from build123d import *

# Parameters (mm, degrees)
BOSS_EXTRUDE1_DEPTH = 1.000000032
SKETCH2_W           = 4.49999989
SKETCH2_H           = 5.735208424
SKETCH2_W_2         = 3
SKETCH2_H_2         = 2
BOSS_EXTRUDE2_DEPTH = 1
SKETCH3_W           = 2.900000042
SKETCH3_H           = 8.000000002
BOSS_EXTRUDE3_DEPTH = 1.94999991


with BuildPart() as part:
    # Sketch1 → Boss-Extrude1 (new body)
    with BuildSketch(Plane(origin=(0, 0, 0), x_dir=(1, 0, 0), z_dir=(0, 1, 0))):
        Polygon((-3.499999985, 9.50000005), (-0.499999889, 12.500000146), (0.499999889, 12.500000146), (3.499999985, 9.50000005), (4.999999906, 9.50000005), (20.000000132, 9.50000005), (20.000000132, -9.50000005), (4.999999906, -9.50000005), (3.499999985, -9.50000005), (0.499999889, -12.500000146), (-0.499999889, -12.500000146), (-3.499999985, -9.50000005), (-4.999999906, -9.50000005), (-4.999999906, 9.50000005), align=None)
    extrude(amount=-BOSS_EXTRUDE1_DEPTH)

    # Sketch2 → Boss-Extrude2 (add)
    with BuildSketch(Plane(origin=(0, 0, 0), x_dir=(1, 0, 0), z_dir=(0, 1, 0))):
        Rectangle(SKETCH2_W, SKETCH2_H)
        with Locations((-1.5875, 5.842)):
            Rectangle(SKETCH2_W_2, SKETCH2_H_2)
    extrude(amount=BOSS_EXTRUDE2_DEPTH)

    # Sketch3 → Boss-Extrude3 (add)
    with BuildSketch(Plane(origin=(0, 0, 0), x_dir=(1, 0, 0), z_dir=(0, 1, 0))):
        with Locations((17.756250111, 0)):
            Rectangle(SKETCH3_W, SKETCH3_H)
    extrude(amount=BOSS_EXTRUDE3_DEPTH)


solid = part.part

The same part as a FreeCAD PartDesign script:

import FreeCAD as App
import Part
import Sketcher

V = App.Vector

doc = App.newDocument("Part")
body = doc.addObject("PartDesign::Body", "Body")

# Sketch on XZ plane
sketch1 = body.newObject("Sketcher::SketchObject", "Sketch")
sketch1.AttachmentSupport = (doc.getObject("XZ_Plane"), [""])
sketch1.MapMode = "FlatFace"
sketch1.addGeometry([
    Part.LineSegment(V(-0.5, -12.5, 0), V(-3.5, -9.5, 0)),  # 0
    Part.LineSegment(V(-3.5, -9.5, 0), V(-5, -9.5, 0)),  # 1
    Part.LineSegment(V(-5, -9.5, 0), V(-5, 9.5, 0)),  # 2
    Part.LineSegment(V(-5, 9.5, 0), V(-3.5, 9.5, 0)),  # 3
    Part.LineSegment(V(-3.5, 9.5, 0), V(-0.5, 12.5, 0)),  # 4
    Part.LineSegment(V(-0.5, 12.5, 0), V(0.5, 12.5, 0)),  # 5
    Part.LineSegment(V(0.5, 12.5, 0), V(3.5, 9.5, 0)),  # 6
    Part.LineSegment(V(3.5, 9.5, 0), V(20, 9.5, 0)),  # 7
    Part.LineSegment(V(20, 9.5, 0), V(20, -9.5, 0)),  # 8
    Part.LineSegment(V(20, -9.5, 0), V(3.5, -9.5, 0)),  # 9
    Part.LineSegment(V(3.5, -9.5, 0), V(0.5, -12.5, 0)),  # 10
    Part.LineSegment(V(0.5, -12.5, 0), V(-0.5, -12.5, 0)),  # 11
], False)
sketch1.addConstraint([
    Sketcher.Constraint("Coincident", 0, 2, 1, 1),
    Sketcher.Constraint("Coincident", 1, 2, 2, 1),
    Sketcher.Constraint("Coincident", 2, 2, 3, 1),
    Sketcher.Constraint("Coincident", 3, 2, 4, 1),
    Sketcher.Constraint("Coincident", 4, 2, 5, 1),
    Sketcher.Constraint("Coincident", 5, 2, 6, 1),
    Sketcher.Constraint("Coincident", 6, 2, 7, 1),
    Sketcher.Constraint("Coincident", 7, 2, 8, 1),
    Sketcher.Constraint("Coincident", 8, 2, 9, 1),
    Sketcher.Constraint("Coincident", 9, 2, 10, 1),
    Sketcher.Constraint("Coincident", 10, 2, 11, 1),
    Sketcher.Constraint("Coincident", 11, 2, 0, 1),
    Sketcher.Constraint("Horizontal", 1),
    Sketcher.Constraint("Vertical", 2),
    Sketcher.Constraint("Horizontal", 3),
    Sketcher.Constraint("Horizontal", 5),
    Sketcher.Constraint("Horizontal", 7),
    Sketcher.Constraint("Vertical", 8),
    Sketcher.Constraint("Horizontal", 9),
    Sketcher.Constraint("Horizontal", 11),
    Sketcher.Constraint("Symmetric", 0, 2, 6, 2, -1, 1),
    Sketcher.Constraint("Symmetric", 3, 2, 9, 2, -1, 1),
    Sketcher.Constraint("Symmetric", 4, 2, 10, 2, -1, 1),
    Sketcher.Constraint("Symmetric", 3, 2, 6, 2, -2),
    Sketcher.Constraint("Perpendicular", 0, 4),
    Sketcher.Constraint("Perpendicular", 4, 6),
    Sketcher.Constraint("Vertical", 5, 2, 10, 2),
    Sketcher.Constraint("DistanceX", 5, 1, 5, 2, 1.0),
    Sketcher.Constraint("DistanceY", 2, 1, 2, 2, 19.0),
    Sketcher.Constraint("DistanceX", 1, 2, 1, 1, 1.5),
    Sketcher.Constraint("DistanceX", 7, 1, 7, 2, 16.5),
    Sketcher.Constraint("DistanceX", 1, 2, -1, 1, 5.0),
])
pad1 = body.newObject("PartDesign::Pad", "Pad")
pad1.Profile = sketch1
pad1.Length = 1

# Sketch on XZ plane
sketch2 = body.newObject("Sketcher::SketchObject", "Sketch001")
sketch2.AttachmentSupport = (doc.getObject("XZ_Plane"), [""])
sketch2.MapMode = "FlatFace"
sketch2.addGeometry([
    Part.LineSegment(V(-2.2, -2.9, 0), V(-2.2, 2.9, 0)),  # 0
    Part.LineSegment(V(-2.2, 2.9, 0), V(2.2, 2.9, 0)),  # 1
    Part.LineSegment(V(2.2, 2.9, 0), V(2.2, -2.9, 0)),  # 2
    Part.LineSegment(V(2.2, -2.9, 0), V(-2.2, -2.9, 0)),  # 3
    Part.LineSegment(V(-3.1, -6.8, 0), V(-3.1, -4.8, 0)),  # 4
    Part.LineSegment(V(-3.1, -4.8, 0), V(-0.1, -4.8, 0)),  # 5
    Part.LineSegment(V(-0.1, -4.8, 0), V(-0.1, -6.8, 0)),  # 6
    Part.LineSegment(V(-0.1, -6.8, 0), V(-3.1, -6.8, 0)),  # 7
], False)
sketch2.addConstraint([
    Sketcher.Constraint("Coincident", 0, 2, 1, 1),
    Sketcher.Constraint("Coincident", 1, 2, 2, 1),
    Sketcher.Constraint("Coincident", 2, 2, 3, 1),
    Sketcher.Constraint("Coincident", 3, 2, 0, 1),
    Sketcher.Constraint("Coincident", 4, 2, 5, 1),
    Sketcher.Constraint("Coincident", 5, 2, 6, 1),
    Sketcher.Constraint("Coincident", 6, 2, 7, 1),
    Sketcher.Constraint("Coincident", 7, 2, 4, 1),
    Sketcher.Constraint("Vertical", 0),
    Sketcher.Constraint("Horizontal", 1),
    Sketcher.Constraint("Vertical", 2),
    Sketcher.Constraint("Horizontal", 3),
    Sketcher.Constraint("Vertical", 4),
    Sketcher.Constraint("Horizontal", 5),
    Sketcher.Constraint("Vertical", 6),
    Sketcher.Constraint("Horizontal", 7),
    Sketcher.Constraint("Symmetric", 0, 2, 2, 2, -1, 1),
    Sketcher.Constraint("DistanceX", 5, 1, 5, 2, 3.0),
    Sketcher.Constraint("DistanceY", 4, 1, 4, 2, 2.0),
    Sketcher.Constraint("DistanceX", 1, 1, 1, 2, 4.5),
    Sketcher.Constraint("DistanceY", 4, 2, -1, 1, 4.842),
    Sketcher.Constraint("DistanceY", 0, 1, 0, 2, 5.735208),
    Sketcher.Constraint("DistanceX", 4, 2, -1, 1, 3.0875),
])
pad2 = body.newObject("PartDesign::Pad", "Pad001")
pad2.Profile = sketch2
pad2.Length = 1
pad2.Reversed = True

# Sketch on XZ plane
sketch3 = body.newObject("Sketcher::SketchObject", "Sketch002")
sketch3.AttachmentSupport = (doc.getObject("XZ_Plane"), [""])
sketch3.MapMode = "FlatFace"
sketch3.addGeometry([
    Part.LineSegment(V(16.3, -4, 0), V(16.3, 4, 0)),
    Part.LineSegment(V(16.3, 4, 0), V(19.2, 4, 0)),
    Part.LineSegment(V(19.2, 4, 0), V(19.2, -4, 0)),
    Part.LineSegment(V(19.2, -4, 0), V(16.3, -4, 0)),
], False)
sketch3.addConstraint([
    Sketcher.Constraint("Coincident", 0, 2, 1, 1),
    Sketcher.Constraint("Coincident", 1, 2, 2, 1),
    Sketcher.Constraint("Coincident", 2, 2, 3, 1),
    Sketcher.Constraint("Coincident", 3, 2, 0, 1),
    Sketcher.Constraint("Vertical", 0),
    Sketcher.Constraint("Horizontal", 1),
    Sketcher.Constraint("Vertical", 2),
    Sketcher.Constraint("Horizontal", 3),
    Sketcher.Constraint("DistanceY", 0, 1, 0, 2, 8.0),
    Sketcher.Constraint("DistanceX", 1, 1, 1, 2, 2.9),
    Sketcher.Constraint("DistanceY", -1, 1, 0, 2, 4.0),
    Sketcher.Constraint("DistanceX", -1, 1, 0, 2, 16.30625),
])
pad3 = body.newObject("PartDesign::Pad", "Pad002")
pad3.Profile = sketch3
pad3.Length = 1.95
pad3.Reversed = True

doc.recompute()
